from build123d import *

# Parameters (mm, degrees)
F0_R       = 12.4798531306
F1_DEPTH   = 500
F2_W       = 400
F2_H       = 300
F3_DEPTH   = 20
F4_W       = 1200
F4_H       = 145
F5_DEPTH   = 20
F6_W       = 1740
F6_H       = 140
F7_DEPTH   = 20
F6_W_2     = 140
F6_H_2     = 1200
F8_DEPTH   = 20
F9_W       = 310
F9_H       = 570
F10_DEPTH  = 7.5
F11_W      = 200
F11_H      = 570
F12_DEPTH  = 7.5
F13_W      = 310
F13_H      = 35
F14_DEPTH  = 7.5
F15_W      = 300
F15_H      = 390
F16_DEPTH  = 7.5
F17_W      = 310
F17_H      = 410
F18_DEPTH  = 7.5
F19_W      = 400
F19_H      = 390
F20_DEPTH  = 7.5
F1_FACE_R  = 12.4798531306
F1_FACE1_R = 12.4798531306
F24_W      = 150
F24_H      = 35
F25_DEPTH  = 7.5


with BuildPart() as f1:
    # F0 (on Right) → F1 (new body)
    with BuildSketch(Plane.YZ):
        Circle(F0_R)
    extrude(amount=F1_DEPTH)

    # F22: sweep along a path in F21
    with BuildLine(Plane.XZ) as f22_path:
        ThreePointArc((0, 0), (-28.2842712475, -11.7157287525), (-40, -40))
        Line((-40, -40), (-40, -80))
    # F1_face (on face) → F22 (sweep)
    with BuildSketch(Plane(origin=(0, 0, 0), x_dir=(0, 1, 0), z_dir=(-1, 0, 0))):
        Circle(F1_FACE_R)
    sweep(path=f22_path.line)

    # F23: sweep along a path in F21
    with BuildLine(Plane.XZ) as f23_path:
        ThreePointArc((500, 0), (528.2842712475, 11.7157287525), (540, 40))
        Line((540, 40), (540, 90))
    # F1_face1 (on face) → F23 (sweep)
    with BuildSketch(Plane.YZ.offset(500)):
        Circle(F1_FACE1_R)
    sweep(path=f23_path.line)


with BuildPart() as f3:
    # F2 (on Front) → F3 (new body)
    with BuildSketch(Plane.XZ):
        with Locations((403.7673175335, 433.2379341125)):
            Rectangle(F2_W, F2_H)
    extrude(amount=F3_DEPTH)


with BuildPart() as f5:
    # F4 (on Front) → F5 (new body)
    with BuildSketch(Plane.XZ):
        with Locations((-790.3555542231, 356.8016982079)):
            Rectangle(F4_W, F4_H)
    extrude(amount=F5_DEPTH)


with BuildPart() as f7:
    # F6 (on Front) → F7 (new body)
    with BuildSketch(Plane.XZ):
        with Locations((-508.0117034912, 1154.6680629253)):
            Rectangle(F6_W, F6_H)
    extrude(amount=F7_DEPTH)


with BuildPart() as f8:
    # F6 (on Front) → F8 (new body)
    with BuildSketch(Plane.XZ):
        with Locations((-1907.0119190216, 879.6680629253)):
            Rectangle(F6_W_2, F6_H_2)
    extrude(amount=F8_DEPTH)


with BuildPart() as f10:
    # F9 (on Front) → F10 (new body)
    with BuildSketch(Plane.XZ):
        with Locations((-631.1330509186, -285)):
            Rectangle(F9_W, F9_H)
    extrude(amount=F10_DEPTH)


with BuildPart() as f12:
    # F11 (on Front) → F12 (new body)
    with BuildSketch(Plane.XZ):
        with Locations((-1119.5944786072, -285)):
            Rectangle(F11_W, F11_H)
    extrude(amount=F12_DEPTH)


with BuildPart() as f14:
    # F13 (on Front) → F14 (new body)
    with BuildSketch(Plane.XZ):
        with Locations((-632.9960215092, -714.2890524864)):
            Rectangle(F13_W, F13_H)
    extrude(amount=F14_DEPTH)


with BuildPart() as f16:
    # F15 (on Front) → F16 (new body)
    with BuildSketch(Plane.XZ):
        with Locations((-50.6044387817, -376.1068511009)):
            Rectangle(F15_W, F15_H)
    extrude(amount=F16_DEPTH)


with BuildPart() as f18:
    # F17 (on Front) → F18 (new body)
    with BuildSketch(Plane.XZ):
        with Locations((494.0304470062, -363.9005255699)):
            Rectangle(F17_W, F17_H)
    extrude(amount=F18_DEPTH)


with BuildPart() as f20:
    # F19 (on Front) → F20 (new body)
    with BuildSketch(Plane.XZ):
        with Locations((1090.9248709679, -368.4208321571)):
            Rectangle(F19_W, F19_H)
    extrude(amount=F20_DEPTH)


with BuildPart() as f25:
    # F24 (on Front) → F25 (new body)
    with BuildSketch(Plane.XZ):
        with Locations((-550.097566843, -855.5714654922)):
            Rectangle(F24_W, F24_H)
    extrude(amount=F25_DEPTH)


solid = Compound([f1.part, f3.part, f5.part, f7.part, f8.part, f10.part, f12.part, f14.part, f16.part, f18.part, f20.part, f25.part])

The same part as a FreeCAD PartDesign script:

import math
import FreeCAD as App
import Part
import Sketcher
Q = App.Units.Quantity


def add_polygon(sketch, points):
    """Adds a closed chain of lines whose ends are joined by coincident constraints."""
    first, n = sketch.GeometryCount, len(points)
    for a, b in zip(points, points[1:] + points[:1]):
        sketch.addGeometry(Part.LineSegment(App.Vector(*a, 0), App.Vector(*b, 0)), False)
    for i in range(n):
        sketch.addConstraint(Sketcher.Constraint("Coincident", first + i, 2, first + (i + 1) % n, 1))

doc = App.newDocument("Part")
params = doc.addObject("Spreadsheet::Sheet", "Params")
for row, (alias, value) in enumerate([
    ("pad1_length", "500 mm"),
    ("sketch3_radius", "40 mm"),
    ("sketch3_height", "40 mm"),
    ("sketch5_radius", "40 mm"),
    ("sketch5_height", "50 mm"),
    ("sketch6_width", "400 mm"),
    ("sketch6_height", "300 mm"),
    ("pad2_length", "20 mm"),
    ("sketch7_width", "1200 mm"),
    ("sketch7_height", "145 mm"),
    ("pad3_length", "20 mm"),
    ("sketch8_width", "1740 mm"),
    ("sketch8_height", "140 mm"),
    ("pad4_length", "20 mm"),
    ("sketch9_width", "140 mm"),
    ("sketch9_height", "1200 mm"),
    ("pad5_length", "20 mm"),
    ("sketch10_width", "310 mm"),
    ("sketch10_height", "570 mm"),
    ("pad6_length", "7.5 mm"),
    ("sketch11_width", "200 mm"),
    ("sketch11_height", "570 mm"),
    ("pad7_length", "7.5 mm"),
    ("sketch12_width", "310 mm"),
    ("sketch12_height", "35 mm"),
    ("pad8_length", "7.5 mm"),
    ("sketch13_width", "300 mm"),
    ("sketch13_height", "390 mm"),
    ("pad9_length", "7.5 mm"),
    ("sketch14_width", "310 mm"),
    ("sketch14_height", "410 mm"),
    ("pad10_length", "7.5 mm"),
    ("sketch15_width", "400 mm"),
    ("sketch15_height", "390 mm"),
    ("pad11_length", "7.5 mm"),
    ("sketch16_width", "150 mm"),
    ("sketch16_height", "35 mm"),
    ("pad12_length", "7.5 mm"),
], start=1):
    params.set(f"A{row}", alias)
    params.set(f"B{row}", "=" + value)
    params.setAlias(f"B{row}", alias)

body = doc.addObject("PartDesign::Body", "Body")

# Sketch on YZ plane
sketch1 = doc.addObject("Sketcher::SketchObject", "Sketch")
body.addObject(sketch1)
sketch1.AttachmentSupport = (doc.YZ_Plane, [""])
sketch1.MapMode = "FlatFace"
sketch1.addGeometry(Part.Circle(App.Vector(0, 0, 0), App.Vector(0, 0, 1), 12), False)
sketch1.addConstraint(Sketcher.Constraint("Coincident", 0, 3, -1, 1))
sketch1.addConstraint(Sketcher.Constraint("Diameter", 0, Q("24.959706 mm")))
pad1 = doc.addObject("PartDesign::Pad", "Pad")
body.addObject(pad1)
pad1.Profile = sketch1
pad1.setExpression("Length", "Params.pad1_length")

# Sketch on YZ plane
sketch2 = doc.addObject("Sketcher::SketchObject", "Sketch001")
body.addObject(sketch2)
sketch2.AttachmentSupport = (doc.YZ_Plane, [""])
sketch2.MapMode = "FlatFace"
sketch2.addGeometry(Part.Circle(App.Vector(0, 0, 0), App.Vector(0, 0, 1), 12), False)
sketch2.addConstraint(Sketcher.Constraint("Coincident", 0, 3, -1, 1))
sketch2.addConstraint(Sketcher.Constraint("Diameter", 0, Q("24.959706 mm")))

# Sketch on XZ plane
sketch3 = doc.addObject("Sketcher::SketchObject", "Sketch002")
body.addObject(sketch3)
sketch3.AttachmentSupport = (doc.XZ_Plane, [""])
sketch3.MapMode = "FlatFace"
sketch3.addGeometry(Part.ArcOfCircle(Part.Circle(App.Vector(0, -40, 0), App.Vector(0, 0, 1), 40), math.radians(90), math.radians(180)), False)
sketch3.addGeometry(Part.LineSegment(App.Vector(-40, -40, 0), App.Vector(-40, -80, 0)), False)
sketch3.addConstraint(Sketcher.Constraint("Tangent", 0, 2, 1, 1))
sketch3.addConstraint(Sketcher.Constraint("Vertical", 1))
sketch3.addConstraint(Sketcher.Constraint("Coincident", 0, 1, -1, 1))
sketch3.addConstraint(Sketcher.Constraint("PointOnObject", 0, 3, -2))
sketch3.addConstraint(Sketcher.Constraint("Radius", 0, Q("40 mm")))
sketch3.addConstraint(Sketcher.Constraint("DistanceY", 1, 2, 1, 1, Q("40 mm")))
sketch3.setExpression("Constraints[4]", "Params.sketch3_radius")
sketch3.setExpression("Constraints[5]", "Params.sketch3_height")
doc.recompute()

additivepipe = doc.addObject("PartDesign::AdditivePipe", "AdditivePipe")
body.addObject(additivepipe)
additivepipe.Profile = sketch2
additivepipe.Spine = (sketch3, ["Edge1", "Edge2"])

# Sketch on YZ plane
sketch4 = doc.addObject("Sketcher::SketchObject", "Sketch003")
body.addObject(sketch4)
sketch4.AttachmentSupport = (doc.YZ_Plane, [""])
sketch4.MapMode = "FlatFace"
sketch4.AttachmentOffset = App.Placement(App.Vector(0, 0, 500), App.Rotation())
sketch4.addGeometry(Part.Circle(App.Vector(0, 0, 0), App.Vector(0, 0, 1), 12), False)
sketch4.addConstraint(Sketcher.Constraint("Coincident", 0, 3, -1, 1))
sketch4.addConstraint(Sketcher.Constraint("Diameter", 0, Q("24.959706 mm")))

# Sketch on XZ plane
sketch5 = doc.addObject("Sketcher::SketchObject", "Sketch004")
body.addObject(sketch5)
sketch5.AttachmentSupport = (doc.XZ_Plane, [""])
sketch5.MapMode = "FlatFace"
sketch5.addGeometry(Part.ArcOfCircle(Part.Circle(App.Vector(500, 40, 0), App.Vector(0, 0, 1), 40), math.radians(-90), math.radians(0)), False)
sketch5.addGeometry(Part.LineSegment(App.Vector(540, 40, 0), App.Vector(540, 90, 0)), False)
sketch5.addConstraint(Sketcher.Constraint("Tangent", 0, 2, 1, 1))
sketch5.addConstraint(Sketcher.Constraint("Vertical", 1))
sketch5.addConstraint(Sketcher.Constraint("PointOnObject", 0, 1, -1))
sketch5.addConstraint(Sketcher.Constraint("Radius", 0, Q("40 mm")))
sketch5.addConstraint(Sketcher.Constraint("DistanceY", 1, 1, 1, 2, Q("50 mm")))
sketch5.addConstraint(Sketcher.Constraint("DistanceX", -1, 1, 0, 3, Q("500 mm")))
sketch5.addConstraint(Sketcher.Constraint("DistanceX", -1, 1, 0, 1, Q("500 mm")))
sketch5.setExpression("Constraints[3]", "Params.sketch5_radius")
sketch5.setExpression("Constraints[4]", "Params.sketch5_height")
doc.recompute()

additivepipe2 = doc.addObject("PartDesign::AdditivePipe", "AdditivePipe001")
body.addObject(additivepipe2)
additivepipe2.Profile = sketch4
additivepipe2.Spine = (sketch5, ["Edge1", "Edge2"])
body2 = doc.addObject("PartDesign::Body", "Body001")

# Sketch on XZ plane
sketch6 = doc.addObject("Sketcher::SketchObject", "Sketch005")
body2.addObject(sketch6)
sketch6.AttachmentSupport = (doc.getObject("XZ_Plane001"), [""])
sketch6.MapMode = "FlatFace"
add_polygon(sketch6, [(204, 583), (204, 283), (604, 283), (604, 583)])  # lines 0-3
sketch6.addConstraint(Sketcher.Constraint("Vertical", 0))
sketch6.addConstraint(Sketcher.Constraint("Horizontal", 1))
sketch6.addConstraint(Sketcher.Constraint("Vertical", 2))
sketch6.addConstraint(Sketcher.Constraint("Horizontal", 3))
sketch6.addConstraint(Sketcher.Constraint("DistanceX", 1, 1, 1, 2, Q("400 mm")))
sketch6.addConstraint(Sketcher.Constraint("DistanceY", 0, 2, 0, 1, Q("300 mm")))
sketch6.addConstraint(Sketcher.Constraint("DistanceX", -1, 1, 0, 2, Q("203.767318 mm")))
sketch6.addConstraint(Sketcher.Constraint("DistanceY", -1, 1, 0, 2, Q("283.237934 mm")))
sketch6.setExpression("Constraints[8]", "Params.sketch6_width")
sketch6.setExpression("Constraints[9]", "Params.sketch6_height")
pad2 = doc.addObject("PartDesign::Pad", "Pad001")
body2.addObject(pad2)
pad2.Profile = sketch6
pad2.setExpression("Length", "Params.pad2_length")
body3 = doc.addObject("PartDesign::Body", "Body002")

# Sketch on XZ plane
sketch7 = doc.addObject("Sketcher::SketchObject", "Sketch006")
body3.addObject(sketch7)
sketch7.AttachmentSupport = (doc.getObject("XZ_Plane002"), [""])
sketch7.MapMode = "FlatFace"
add_polygon(sketch7, [(-1390, 429), (-1390, 284), (-190, 284), (-190, 429)])  # lines 0-3
sketch7.addConstraint(Sketcher.Constraint("Vertical", 0))
sketch7.addConstraint(Sketcher.Constraint("Horizontal", 1))
sketch7.addConstraint(Sketcher.Constraint("Vertical", 2))
sketch7.addConstraint(Sketcher.Constraint("Horizontal", 3))
sketch7.addConstraint(Sketcher.Constraint("DistanceX", 1, 1, 1, 2, Q("1200 mm")))
sketch7.addConstraint(Sketcher.Constraint("DistanceY", 0, 2, 0, 1, Q("145 mm")))
sketch7.addConstraint(Sketcher.Constraint("DistanceY", -1, 1, 0, 2, Q("284.301698 mm")))
sketch7.addConstraint(Sketcher.Constraint("DistanceX", 0, 2, -1, 1, Q("1390.355554 mm")))
sketch7.setExpression("Constraints[8]", "Params.sketch7_width")
sketch7.setExpression("Constraints[9]", "Params.sketch7_height")
pad3 = doc.addObject("PartDesign::Pad", "Pad002")
body3.addObject(pad3)
pad3.Profile = sketch7
pad3.setExpression("Length", "Params.pad3_length")
body4 = doc.addObject("PartDesign::Body", "Body003")

# Sketch on XZ plane
sketch8 = doc.addObject("Sketcher::SketchObject", "Sketch007")
body4.addObject(sketch8)
sketch8.AttachmentSupport = (doc.getObject("XZ_Plane003"), [""])
sketch8.MapMode = "FlatFace"
add_polygon(sketch8, [(-1378, 1225), (-1378, 1085), (362, 1085), (362, 1225)])  # lines 0-3
sketch8.addConstraint(Sketcher.Constraint("Vertical", 0))
sketch8.addConstraint(Sketcher.Constraint("Horizontal", 1))
sketch8.addConstraint(Sketcher.Constraint("Vertical", 2))
sketch8.addConstraint(Sketcher.Constraint("Horizontal", 3))
sketch8.addConstraint(Sketcher.Constraint("DistanceX", 1, 1, 1, 2, Q("1740 mm")))
sketch8.addConstraint(Sketcher.Constraint("DistanceY", 0, 2, 0, 1, Q("140 mm")))
sketch8.addConstraint(Sketcher.Constraint("DistanceX", 0, 2, -1, 1, Q("1378.011703 mm")))
sketch8.addConstraint(Sketcher.Constraint("DistanceY", -1, 1, 0, 2, Q("1084.668063 mm")))
sketch8.setExpression("Constraints[8]", "Params.sketch8_width")
sketch8.setExpression("Constraints[9]", "Params.sketch8_height")
pad4 = doc.addObject("PartDesign::Pad", "Pad003")
body4.addObject(pad4)
pad4.Profile = sketch8
pad4.setExpression("Length", "Params.pad4_length")
body5 = doc.addObject("PartDesign::Body", "Body004")

# Sketch on XZ plane
sketch9 = doc.addObject("Sketcher::SketchObject", "Sketch008")
body5.addObject(sketch9)
sketch9.AttachmentSupport = (doc.getObject("XZ_Plane004"), [""])
sketch9.MapMode = "FlatFace"
add_polygon(sketch9, [(-1977, 1480), (-1977, 280), (-1837, 280), (-1837, 1480)])  # lines 0-3
sketch9.addConstraint(Sketcher.Constraint("Vertical", 0))
sketch9.addConstraint(Sketcher.Constraint("Horizontal", 1))
sketch9.addConstraint(Sketcher.Constraint("Vertical", 2))
sketch9.addConstraint(Sketcher.Constraint("Horizontal", 3))
sketch9.addConstraint(Sketcher.Constraint("DistanceX", 1, 1, 1, 2, Q("140 mm")))
sketch9.addConstraint(Sketcher.Constraint("DistanceY", 0, 2, 0, 1, Q("1200 mm")))
sketch9.addConstraint(Sketcher.Constraint("DistanceX", 0, 2, -1, 1, Q("1977.011919 mm")))
sketch9.addConstraint(Sketcher.Constraint("DistanceY", -1, 1, 0, 2, Q("279.668063 mm")))
sketch9.setExpression("Constraints[8]", "Params.sketch9_width")
sketch9.setExpression("Constraints[9]", "Params.sketch9_height")
pad5 = doc.addObject("PartDesign::Pad", "Pad004")
body5.addObject(pad5)
pad5.Profile = sketch9
pad5.setExpression("Length", "Params.pad5_length")
body6 = doc.addObject("PartDesign::Body", "Body005")

# Sketch on XZ plane
sketch10 = doc.addObject("Sketcher::SketchObject", "Sketch009")
body6.addObject(sketch10)
sketch10.AttachmentSupport = (doc.getObject("XZ_Plane005"), [""])
sketch10.MapMode = "FlatFace"
add_polygon(sketch10, [(-786, 0), (-786, -570), (-476, -570), (-476, 0)])  # lines 0-3
sketch10.addConstraint(Sketcher.Constraint("Vertical", 0))
sketch10.addConstraint(Sketcher.Constraint("Horizontal", 1))
sketch10.addConstraint(Sketcher.Constraint("Vertical", 2))
sketch10.addConstraint(Sketcher.Constraint("Horizontal", 3))
sketch10.addConstraint(Sketcher.Constraint("PointOnObject", 2, 2, -1))
sketch10.addConstraint(Sketcher.Constraint("DistanceX", 1, 1, 1, 2, Q("310 mm")))
sketch10.addConstraint(Sketcher.Constraint("DistanceY", 0, 2, 0, 1, Q("570 mm")))
sketch10.addConstraint(Sketcher.Constraint("DistanceX", 0, 2, -1, 1, Q("786.133051 mm")))
sketch10.setExpression("Constraints[9]", "Params.sketch10_width")
sketch10.setExpression("Constraints[10]", "Params.sketch10_height")
pad6 = doc.addObject("PartDesign::Pad", "Pad005")
body6.addObject(pad6)
pad6.Profile = sketch10
pad6.setExpression("Length", "Params.pad6_length")
body7 = doc.addObject("PartDesign::Body", "Body006")

# Sketch on XZ plane
sketch11 = doc.addObject("Sketcher::SketchObject", "Sketch010")
body7.addObject(sketch11)
sketch11.AttachmentSupport = (doc.getObject("XZ_Plane006"), [""])
sketch11.MapMode = "FlatFace"
add_polygon(sketch11, [(-1220, 0), (-1220, -570), (-1020, -570), (-1020, 0)])  # lines 0-3
sketch11.addConstraint(Sketcher.Constraint("Vertical", 0))
sketch11.addConstraint(Sketcher.Constraint("Horizontal", 1))
sketch11.addConstraint(Sketcher.Constraint("Vertical", 2))
sketch11.addConstraint(Sketcher.Constraint("Horizontal", 3))
sketch11.addConstraint(Sketcher.Constraint("PointOnObject", 2, 2, -1))
sketch11.addConstraint(Sketcher.Constraint("DistanceX", 1, 1, 1, 2, Q("200 mm")))
sketch11.addConstraint(Sketcher.Constraint("DistanceY", 0, 2, 0, 1, Q("570 mm")))
sketch11.addConstraint(Sketcher.Constraint("DistanceX", 0, 2, -1, 1, Q("1219.594479 mm")))
sketch11.setExpression("Constraints[9]", "Params.sketch11_width")
sketch11.setExpression("Constraints[10]", "Params.sketch11_height")
pad7 = doc.addObject("PartDesign::Pad", "Pad006")
body7.addObject(pad7)
pad7.Profile = sketch11
pad7.setExpression("Length", "Params.pad7_length")
body8 = doc.addObject("PartDesign::Body", "Body007")

# Sketch on XZ plane
sketch12 = doc.addObject("Sketcher::SketchObject", "Sketch011")
body8.addObject(sketch12)
sketch12.AttachmentSupport = (doc.getObject("XZ_Plane007"), [""])
sketch12.MapMode = "FlatFace"
add_polygon(sketch12, [(-788, -697), (-788, -732), (-478, -732), (-478, -697)])  # lines 0-3
sketch12.addConstraint(Sketcher.Constraint("Vertical", 0))
sketch12.addConstraint(Sketcher.Constraint("Horizontal", 1))
sketch12.addConstraint(Sketcher.Constraint("Vertical", 2))
sketch12.addConstraint(Sketcher.Constraint("Horizontal", 3))
sketch12.addConstraint(Sketcher.Constraint("DistanceX", 1, 1, 1, 2, Q("310 mm")))
sketch12.addConstraint(Sketcher.Constraint("DistanceY", 0, 2, 0, 1, Q("35 mm")))
sketch12.addConstraint(Sketcher.Constraint("DistanceX", 0, 2, -1, 1, Q("787.996022 mm")))
sketch12.addConstraint(Sketcher.Constraint("DistanceY", 0, 2, -1, 1, Q("731.789052 mm")))
sketch12.setExpression("Constraints[8]", "Params.sketch12_width")
sketch12.setExpression("Constraints[9]", "Params.sketch12_height")
pad8 = doc.addObject("PartDesign::Pad", "Pad007")
body8.addObject(pad8)
pad8.Profile = sketch12
pad8.setExpression("Length", "Params.pad8_length")
body9 = doc.addObject("PartDesign::Body", "Body008")

# Sketch on XZ plane
sketch13 = doc.addObject("Sketcher::SketchObject", "Sketch012")
body9.addObject(sketch13)
sketch13.AttachmentSupport = (doc.getObject("XZ_Plane008"), [""])
sketch13.MapMode = "FlatFace"
add_polygon(sketch13, [(-201, -181), (-201, -571), (99, -571), (99, -181)])  # lines 0-3
sketch13.addConstraint(Sketcher.Constraint("Vertical", 0))
sketch13.addConstraint(Sketcher.Constraint("Horizontal", 1))
sketch13.addConstraint(Sketcher.Constraint("Vertical", 2))
sketch13.addConstraint(Sketcher.Constraint("Horizontal", 3))
sketch13.addConstraint(Sketcher.Constraint("DistanceX", 1, 1, 1, 2, Q("300 mm")))
sketch13.addConstraint(Sketcher.Constraint("DistanceY", 0, 2, 0, 1, Q("390 mm")))
sketch13.addConstraint(Sketcher.Constraint("DistanceX", 0, 2, -1, 1, Q("200.604439 mm")))
sketch13.addConstraint(Sketcher.Constraint("DistanceY", 0, 2, -1, 1, Q("571.106851 mm")))
sketch13.setExpression("Constraints[8]", "Params.sketch13_width")
sketch13.setExpression("Constraints[9]", "Params.sketch13_height")
pad9 = doc.addObject("PartDesign::Pad", "Pad008")
body9.addObject(pad9)
pad9.Profile = sketch13
pad9.setExpression("Length", "Params.pad9_length")
body10 = doc.addObject("PartDesign::Body", "Body009")

# Sketch on XZ plane
sketch14 = doc.addObject("Sketcher::SketchObject", "Sketch013")
body10.addObject(sketch14)
sketch14.AttachmentSupport = (doc.getObject("XZ_Plane009"), [""])
sketch14.MapMode = "FlatFace"
add_polygon(sketch14, [(339, -159), (339, -569), (649, -569), (649, -159)])  # lines 0-3
sketch14.addConstraint(Sketcher.Constraint("Vertical", 0))
sketch14.addConstraint(Sketcher.Constraint("Horizontal", 1))
sketch14.addConstraint(Sketcher.Constraint("Vertical", 2))
sketch14.addConstraint(Sketcher.Constraint("Horizontal", 3))
sketch14.addConstraint(Sketcher.Constraint("DistanceX", 1, 1, 1, 2, Q("310 mm")))
sketch14.addConstraint(Sketcher.Constraint("DistanceY", 0, 2, 0, 1, Q("410 mm")))
sketch14.addConstraint(Sketcher.Constraint("DistanceX", -1, 1, 0, 2, Q("339.030447 mm")))
sketch14.addConstraint(Sketcher.Constraint("DistanceY", 0, 2, -1, 1, Q("568.900526 mm")))
sketch14.setExpression("Constraints[8]", "Params.sketch14_width")
sketch14.setExpression("Constraints[9]", "Params.sketch14_height")
pad10 = doc.addObject("PartDesign::Pad", "Pad009")
body10.addObject(pad10)
pad10.Profile = sketch14
pad10.setExpression("Length", "Params.pad10_length")
body11 = doc.addObject("PartDesign::Body", "Body010")

# Sketch on XZ plane
sketch15 = doc.addObject("Sketcher::SketchObject", "Sketch014")
body11.addObject(sketch15)
sketch15.AttachmentSupport = (doc.getObject("XZ_Plane010"), [""])
sketch15.MapMode = "FlatFace"
add_polygon(sketch15, [(891, -173), (891, -563), (1291, -563), (1291, -173)])  # lines 0-3
sketch15.addConstraint(Sketcher.Constraint("Vertical", 0))
sketch15.addConstraint(Sketcher.Constraint("Horizontal", 1))
sketch15.addConstraint(Sketcher.Constraint("Vertical", 2))
sketch15.addConstraint(Sketcher.Constraint("Horizontal", 3))
sketch15.addConstraint(Sketcher.Constraint("DistanceX", 1, 1, 1, 2, Q("400 mm")))
sketch15.addConstraint(Sketcher.Constraint("DistanceY", 0, 2, 0, 1, Q("390 mm")))
sketch15.addConstraint(Sketcher.Constraint("DistanceX", -1, 1, 0, 2, Q("890.924871 mm")))
sketch15.addConstraint(Sketcher.Constraint("DistanceY", 0, 2, -1, 1, Q("563.420832 mm")))
sketch15.setExpression("Constraints[8]", "Params.sketch15_width")
sketch15.setExpression("Constraints[9]", "Params.sketch15_height")
pad11 = doc.addObject("PartDesign::Pad", "Pad010")
body11.addObject(pad11)
pad11.Profile = sketch15
pad11.setExpression("Length", "Params.pad11_length")
body12 = doc.addObject("PartDesign::Body", "Body011")

# Sketch on XZ plane
sketch16 = doc.addObject("Sketcher::SketchObject", "Sketch015")
body12.addObject(sketch16)
sketch16.AttachmentSupport = (doc.getObject("XZ_Plane011"), [""])
sketch16.MapMode = "FlatFace"
add_polygon(sketch16, [(-625, -838), (-625, -873), (-475, -873), (-475, -838)])  # lines 0-3
sketch16.addConstraint(Sketcher.Constraint("Vertical", 0))
sketch16.addConstraint(Sketcher.Constraint("Horizontal", 1))
sketch16.addConstraint(Sketcher.Constraint("Vertical", 2))
sketch16.addConstraint(Sketcher.Constraint("Horizontal", 3))
sketch16.addConstraint(Sketcher.Constraint("DistanceX", 1, 1, 1, 2, Q("150 mm")))
sketch16.addConstraint(Sketcher.Constraint("DistanceY", 0, 2, 0, 1, Q("35 mm")))
sketch16.addConstraint(Sketcher.Constraint("DistanceX", 0, 2, -1, 1, Q("625.097567 mm")))
sketch16.addConstraint(Sketcher.Constraint("DistanceY", 0, 2, -1, 1, Q("873.071465 mm")))
sketch16.setExpression("Constraints[8]", "Params.sketch16_width")
sketch16.setExpression("Constraints[9]", "Params.sketch16_height")
pad12 = doc.addObject("PartDesign::Pad", "Pad011")
body12.addObject(pad12)
pad12.Profile = sketch16
pad12.setExpression("Length", "Params.pad12_length")

doc.recompute()
